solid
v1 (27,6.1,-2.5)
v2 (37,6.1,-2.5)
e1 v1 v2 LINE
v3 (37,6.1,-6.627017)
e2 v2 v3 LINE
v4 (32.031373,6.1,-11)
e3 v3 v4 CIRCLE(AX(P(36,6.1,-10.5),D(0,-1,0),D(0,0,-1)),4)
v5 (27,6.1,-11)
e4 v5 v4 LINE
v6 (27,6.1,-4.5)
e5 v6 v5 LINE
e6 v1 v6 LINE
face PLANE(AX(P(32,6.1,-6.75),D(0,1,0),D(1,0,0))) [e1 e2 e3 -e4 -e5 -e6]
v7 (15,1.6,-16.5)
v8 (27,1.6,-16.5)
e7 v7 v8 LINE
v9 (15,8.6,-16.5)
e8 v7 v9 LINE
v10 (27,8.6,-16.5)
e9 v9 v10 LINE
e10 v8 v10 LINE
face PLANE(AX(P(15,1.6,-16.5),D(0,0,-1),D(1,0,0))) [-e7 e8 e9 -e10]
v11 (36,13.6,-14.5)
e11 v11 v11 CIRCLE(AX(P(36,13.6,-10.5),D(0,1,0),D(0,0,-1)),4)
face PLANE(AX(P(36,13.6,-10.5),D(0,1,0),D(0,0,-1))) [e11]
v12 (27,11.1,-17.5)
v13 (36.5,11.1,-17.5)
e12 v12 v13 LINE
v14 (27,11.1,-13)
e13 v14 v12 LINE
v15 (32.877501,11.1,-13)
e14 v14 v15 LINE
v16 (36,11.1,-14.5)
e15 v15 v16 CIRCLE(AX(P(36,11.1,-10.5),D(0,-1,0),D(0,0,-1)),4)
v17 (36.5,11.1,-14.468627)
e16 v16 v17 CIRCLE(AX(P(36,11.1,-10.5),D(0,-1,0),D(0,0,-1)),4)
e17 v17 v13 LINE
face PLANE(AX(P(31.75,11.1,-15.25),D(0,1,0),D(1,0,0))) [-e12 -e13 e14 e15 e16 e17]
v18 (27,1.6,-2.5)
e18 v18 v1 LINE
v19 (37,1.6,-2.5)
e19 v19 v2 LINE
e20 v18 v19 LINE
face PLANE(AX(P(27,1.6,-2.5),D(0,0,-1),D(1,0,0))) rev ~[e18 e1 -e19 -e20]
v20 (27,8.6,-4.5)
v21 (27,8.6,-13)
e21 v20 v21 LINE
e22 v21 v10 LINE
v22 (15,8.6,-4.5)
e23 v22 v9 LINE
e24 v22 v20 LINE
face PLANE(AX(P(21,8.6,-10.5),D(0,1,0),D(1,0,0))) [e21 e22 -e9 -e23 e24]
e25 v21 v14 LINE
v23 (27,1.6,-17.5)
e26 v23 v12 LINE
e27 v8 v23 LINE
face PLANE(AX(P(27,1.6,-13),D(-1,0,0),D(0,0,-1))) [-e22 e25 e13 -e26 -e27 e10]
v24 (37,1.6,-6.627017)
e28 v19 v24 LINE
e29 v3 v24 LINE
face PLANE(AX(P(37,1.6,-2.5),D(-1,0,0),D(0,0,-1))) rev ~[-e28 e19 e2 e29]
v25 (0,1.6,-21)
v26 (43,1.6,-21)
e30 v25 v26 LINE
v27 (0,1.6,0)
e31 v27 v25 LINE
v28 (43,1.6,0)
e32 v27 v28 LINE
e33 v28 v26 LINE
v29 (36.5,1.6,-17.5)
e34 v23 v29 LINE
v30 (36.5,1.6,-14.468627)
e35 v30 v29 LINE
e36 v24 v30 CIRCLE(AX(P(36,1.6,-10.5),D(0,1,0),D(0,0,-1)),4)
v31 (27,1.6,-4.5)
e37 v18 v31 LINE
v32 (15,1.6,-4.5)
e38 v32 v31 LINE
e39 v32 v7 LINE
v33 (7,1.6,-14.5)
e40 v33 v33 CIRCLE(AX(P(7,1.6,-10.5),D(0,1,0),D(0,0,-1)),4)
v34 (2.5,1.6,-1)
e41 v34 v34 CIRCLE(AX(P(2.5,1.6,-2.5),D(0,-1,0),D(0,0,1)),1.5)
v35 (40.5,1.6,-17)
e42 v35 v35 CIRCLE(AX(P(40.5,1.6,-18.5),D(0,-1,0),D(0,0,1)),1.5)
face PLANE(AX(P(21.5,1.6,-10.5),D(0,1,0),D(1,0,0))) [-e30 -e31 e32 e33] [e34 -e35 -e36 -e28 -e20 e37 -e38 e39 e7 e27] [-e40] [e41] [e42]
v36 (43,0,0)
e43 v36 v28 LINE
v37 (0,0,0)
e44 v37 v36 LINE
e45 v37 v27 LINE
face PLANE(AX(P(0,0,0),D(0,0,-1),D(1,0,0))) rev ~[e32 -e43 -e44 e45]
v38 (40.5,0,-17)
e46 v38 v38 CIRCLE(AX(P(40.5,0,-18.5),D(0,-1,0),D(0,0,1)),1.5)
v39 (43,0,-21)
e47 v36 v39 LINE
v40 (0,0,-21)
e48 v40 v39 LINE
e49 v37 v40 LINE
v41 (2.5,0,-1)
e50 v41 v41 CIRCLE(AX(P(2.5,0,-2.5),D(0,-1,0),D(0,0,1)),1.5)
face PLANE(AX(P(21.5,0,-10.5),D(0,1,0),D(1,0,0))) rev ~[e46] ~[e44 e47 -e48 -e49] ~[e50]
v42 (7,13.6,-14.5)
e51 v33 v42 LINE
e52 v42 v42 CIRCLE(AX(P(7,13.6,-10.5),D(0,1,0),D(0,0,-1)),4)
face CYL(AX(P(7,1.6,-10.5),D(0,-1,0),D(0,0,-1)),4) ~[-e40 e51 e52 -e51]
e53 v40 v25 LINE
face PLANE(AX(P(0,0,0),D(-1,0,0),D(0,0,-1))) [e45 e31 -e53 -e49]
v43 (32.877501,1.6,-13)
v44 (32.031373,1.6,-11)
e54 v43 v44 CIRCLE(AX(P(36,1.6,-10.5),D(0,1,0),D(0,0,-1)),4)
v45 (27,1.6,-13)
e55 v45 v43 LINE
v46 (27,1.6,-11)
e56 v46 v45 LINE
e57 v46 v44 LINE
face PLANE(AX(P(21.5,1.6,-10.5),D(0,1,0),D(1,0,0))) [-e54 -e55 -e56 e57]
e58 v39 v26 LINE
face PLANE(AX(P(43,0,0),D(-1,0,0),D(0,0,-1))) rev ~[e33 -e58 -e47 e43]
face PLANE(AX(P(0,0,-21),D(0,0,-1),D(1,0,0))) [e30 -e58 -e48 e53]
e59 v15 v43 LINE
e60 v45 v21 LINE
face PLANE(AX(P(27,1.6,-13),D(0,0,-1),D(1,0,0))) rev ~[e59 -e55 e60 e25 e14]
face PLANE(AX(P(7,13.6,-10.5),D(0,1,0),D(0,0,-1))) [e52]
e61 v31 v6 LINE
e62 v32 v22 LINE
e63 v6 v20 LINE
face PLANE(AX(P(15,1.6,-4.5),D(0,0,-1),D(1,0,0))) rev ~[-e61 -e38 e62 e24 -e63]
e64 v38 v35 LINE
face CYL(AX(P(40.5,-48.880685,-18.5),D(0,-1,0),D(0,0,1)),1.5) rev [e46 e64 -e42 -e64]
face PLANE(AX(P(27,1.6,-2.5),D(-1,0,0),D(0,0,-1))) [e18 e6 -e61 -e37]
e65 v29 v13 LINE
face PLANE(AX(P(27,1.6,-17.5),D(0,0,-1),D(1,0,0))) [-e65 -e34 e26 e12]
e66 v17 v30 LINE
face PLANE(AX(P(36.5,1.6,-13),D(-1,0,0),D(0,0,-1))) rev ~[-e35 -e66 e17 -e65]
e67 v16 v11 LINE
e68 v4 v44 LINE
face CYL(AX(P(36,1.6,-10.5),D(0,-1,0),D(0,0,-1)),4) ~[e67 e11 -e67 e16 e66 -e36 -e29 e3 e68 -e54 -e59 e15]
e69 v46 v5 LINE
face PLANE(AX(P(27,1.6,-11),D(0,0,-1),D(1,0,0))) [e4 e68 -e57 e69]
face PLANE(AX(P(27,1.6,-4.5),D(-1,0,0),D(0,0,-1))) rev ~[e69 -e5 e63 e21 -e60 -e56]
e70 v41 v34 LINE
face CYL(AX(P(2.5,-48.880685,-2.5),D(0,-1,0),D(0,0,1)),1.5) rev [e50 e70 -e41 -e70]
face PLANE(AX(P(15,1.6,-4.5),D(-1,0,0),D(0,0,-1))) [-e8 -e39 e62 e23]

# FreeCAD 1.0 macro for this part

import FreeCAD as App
import Part
import Sketcher

V = App.Vector
Q = App.Units.Quantity


def add_polygon(sketch, points):
    """Adds a closed chain of lines whose ends are joined by coincident constraints."""
    first, n = sketch.GeometryCount, len(points)
    for a, b in zip(points, points[1:] + points[:1]):
        sketch.addGeometry(Part.LineSegment(App.Vector(*a, 0), App.Vector(*b, 0)), False)
    for i in range(n):
        sketch.addConstraint(Sketcher.Constraint("Coincident", first + i, 2, first + (i + 1) % n, 1))

doc = App.newDocument("Part")
body = doc.addObject("PartDesign::Body", "Body")

# Sketch on XZ plane
sketch1 = body.newObject("Sketcher::SketchObject", "Sketch")
sketch1.AttachmentSupport = (doc.getObject("XZ_Plane"), [""])
sketch1.MapMode = "FlatFace"
add_polygon(sketch1, [(0, -21), (0, 0), (43, 0), (43, -21)])  # lines 0-3
sketch1.addConstraint(Sketcher.Constraint("Vertical", 0))
sketch1.addConstraint(Sketcher.Constraint("Horizontal", 1))
sketch1.addConstraint(Sketcher.Constraint("Vertical", 2))
sketch1.addConstraint(Sketcher.Constraint("Horizontal", 3))
sketch1.addConstraint(Sketcher.Constraint("Coincident", 0, 2, -1, 1))
sketch1.addConstraint(Sketcher.Constraint("DistanceX", 1, 1, 1, 2, Q("43 mm")))
sketch1.addConstraint(Sketcher.Constraint("DistanceY", 0, 1, 0, 2, Q("21 mm")))
pad1 = body.newObject("PartDesign::Pad", "Pad")
pad1.Profile = sketch1
pad1.Length = 1.6
pad1.Reversed = True

# Sketch on XZ plane
sketch2 = body.newObject("Sketcher::SketchObject", "Sketch001")
sketch2.AttachmentSupport = (doc.getObject("XZ_Plane"), [""])
sketch2.MapMode = "FlatFace"
sketch2.addGeometry(Part.Circle(V(2.5, -2.5, 0), V(0, 0, 1), 1.5), False)
sketch2.addConstraint(Sketcher.Constraint("Diameter", 0, Q("3 mm")))
sketch2.addConstraint(Sketcher.Constraint("DistanceX", -1, 1, 0, 3, Q("2.5 mm")))
sketch2.addConstraint(Sketcher.Constraint("DistanceY", 0, 3, -1, 1, Q("2.5 mm")))
pocket1 = body.newObject("PartDesign::Pocket", "Pocket")
pocket1.Profile = sketch2
pocket1.Type = "ThroughAll"
pocket1.Midplane = True

# Sketch on XZ plane
sketch3 = body.newObject("Sketcher::SketchObject", "Sketch002")
sketch3.AttachmentSupport = (doc.getObject("XZ_Plane"), [""])
sketch3.MapMode = "FlatFace"
sketch3.addGeometry(Part.Circle(V(40.5, -18.5, 0), V(0, 0, 1), 1.5), False)
sketch3.addConstraint(Sketcher.Constraint("Diameter", 0, Q("3 mm")))
sketch3.addConstraint(Sketcher.Constraint("DistanceX", -1, 1, 0, 3, Q("40.5 mm")))
sketch3.addConstraint(Sketcher.Constraint("DistanceY", 0, 3, -1, 1, Q("18.5 mm")))
pocket2 = body.newObject("PartDesign::Pocket", "Pocket001")
pocket2.Profile = sketch3
pocket2.Type = "ThroughAll"
pocket2.Midplane = True

# Sketch on XZ plane
sketch4 = body.newObject("Sketcher::SketchObject", "Sketch003")
sketch4.AttachmentSupport = (doc.getObject("XZ_Plane"), [""])
sketch4.MapMode = "FlatFace"
sketch4.AttachmentOffset = App.Placement(V(0, 0, -1.6), App.Rotation())
add_polygon(sketch4, [(15, -16), (15, -4), (27, -4), (27, -16)])  # lines 0-3
sketch4.addConstraint(Sketcher.Constraint("Vertical", 0))
sketch4.addConstraint(Sketcher.Constraint("Horizontal", 1))
sketch4.addConstraint(Sketcher.Constraint("Vertical", 2))
sketch4.addConstraint(Sketcher.Constraint("Horizontal", 3))
sketch4.addConstraint(Sketcher.Constraint("Equal", 3, 0))
sketch4.addConstraint(Sketcher.Constraint("DistanceX", 1, 1, 1, 2, Q("12 mm")))
sketch4.addConstraint(Sketcher.Constraint("DistanceX", -1, 1, 0, 2, Q("15 mm")))
sketch4.addConstraint(Sketcher.Constraint("DistanceY", 0, 2, -1, 1, Q("4.5 mm")))
pad2 = body.newObject("PartDesign::Pad", "Pad001")
pad2.Profile = sketch4
pad2.Length = 7
pad2.Reversed = True

# Sketch on XZ plane
sketch5 = body.newObject("Sketcher::SketchObject", "Sketch004")
sketch5.AttachmentSupport = (doc.getObject("XZ_Plane"), [""])
sketch5.MapMode = "FlatFace"
sketch5.AttachmentOffset = App.Placement(V(0, 0, -1.6), App.Rotation())
sketch5.addGeometry(Part.Circle(V(7, -10.5, 0), V(0, 0, 1), 4), False)
sketch5.addConstraint(Sketcher.Constraint("Diameter", 0, Q("8 mm")))
sketch5.addConstraint(Sketcher.Constraint("DistanceX", -1, 1, 0, 3, Q("7 mm")))
sketch5.addConstraint(Sketcher.Constraint("DistanceY", 0, 3, -1, 1, Q("10.5 mm")))
pad3 = body.newObject("PartDesign::Pad", "Pad002")
pad3.Profile = sketch5
pad3.Length = 12
pad3.Reversed = True

# Sketch on XZ plane
sketch6 = body.newObject("Sketcher::SketchObject", "Sketch005")
sketch6.AttachmentSupport = (doc.getObject("XZ_Plane"), [""])
sketch6.MapMode = "FlatFace"
sketch6.AttachmentOffset = App.Placement(V(0, 0, -1.6), App.Rotation())
sketch6.addGeometry(Part.Circle(V(36, -10.5, 0), V(0, 0, 1), 4), False)
sketch6.addConstraint(Sketcher.Constraint("Diameter", 0, Q("8 mm")))
sketch6.addConstraint(Sketcher.Constraint("DistanceX", -1, 1, 0, 3, Q("36 mm")))
sketch6.addConstraint(Sketcher.Constraint("DistanceY", 0, 3, -1, 1, Q("10.5 mm")))
pad4 = body.newObject("PartDesign::Pad", "Pad003")
pad4.Profile = sketch6
pad4.Length = 12
pad4.Reversed = True

# Sketch on XZ plane
sketch7 = body.newObject("Sketcher::SketchObject", "Sketch006")
sketch7.AttachmentSupport = (doc.getObject("XZ_Plane"), [""])
sketch7.MapMode = "FlatFace"
sketch7.AttachmentOffset = App.Placement(V(0, 0, -1.6), App.Rotation())
add_polygon(sketch7, [(27, -17.5), (27, -13), (36.5, -13), (36.5, -17.5)])  # lines 0-3
sketch7.addConstraint(Sketcher.Constraint("Vertical", 0))
sketch7.addConstraint(Sketcher.Constraint("Horizontal", 1))
sketch7.addConstraint(Sketcher.Constraint("Vertical", 2))
sketch7.addConstraint(Sketcher.Constraint("Horizontal", 3))
sketch7.addConstraint(Sketcher.Constraint("DistanceX", 1, 1, 1, 2, Q("9.5 mm")))
sketch7.addConstraint(Sketcher.Constraint("DistanceY", 0, 1, 0, 2, Q("4.5 mm")))
sketch7.addConstraint(Sketcher.Constraint("DistanceX", -1, 1, 0, 2, Q("27 mm")))
sketch7.addConstraint(Sketcher.Constraint("DistanceY", 0, 2, -1, 1, Q("13 mm")))
pad5 = body.newObject("PartDesign::Pad", "Pad004")
pad5.Profile = sketch7
pad5.Length = 9.5
pad5.Reversed = True

# Sketch on XZ plane
sketch8 = body.newObject("Sketcher::SketchObject", "Sketch007")
sketch8.AttachmentSupport = (doc.getObject("XZ_Plane"), [""])
sketch8.MapMode = "FlatFace"
sketch8.AttachmentOffset = App.Placement(V(0, 0, -1.6), App.Rotation())
add_polygon(sketch8, [(27, -11), (27, -2), (37, -2), (37, -11)])  # lines 0-3
sketch8.addConstraint(Sketcher.Constraint("Vertical", 0))
sketch8.addConstraint(Sketcher.Constraint("Horizontal", 1))
sketch8.addConstraint(Sketcher.Constraint("Vertical", 2))
sketch8.addConstraint(Sketcher.Constraint("Horizontal", 3))
sketch8.addConstraint(Sketcher.Constraint("DistanceX", 1, 1, 1, 2, Q("10 mm")))
sketch8.addConstraint(Sketcher.Constraint("DistanceY", 0, 1, 0, 2, Q("8.5 mm")))
sketch8.addConstraint(Sketcher.Constraint("DistanceX", -1, 1, 0, 2, Q("27 mm")))
sketch8.addConstraint(Sketcher.Constraint("DistanceY", 2, 2, -1, 1, Q("11 mm")))
pad6 = body.newObject("PartDesign::Pad", "Pad005")
pad6.Profile = sketch8
pad6.Length = 4.5
pad6.Reversed = True

doc.recompute()
